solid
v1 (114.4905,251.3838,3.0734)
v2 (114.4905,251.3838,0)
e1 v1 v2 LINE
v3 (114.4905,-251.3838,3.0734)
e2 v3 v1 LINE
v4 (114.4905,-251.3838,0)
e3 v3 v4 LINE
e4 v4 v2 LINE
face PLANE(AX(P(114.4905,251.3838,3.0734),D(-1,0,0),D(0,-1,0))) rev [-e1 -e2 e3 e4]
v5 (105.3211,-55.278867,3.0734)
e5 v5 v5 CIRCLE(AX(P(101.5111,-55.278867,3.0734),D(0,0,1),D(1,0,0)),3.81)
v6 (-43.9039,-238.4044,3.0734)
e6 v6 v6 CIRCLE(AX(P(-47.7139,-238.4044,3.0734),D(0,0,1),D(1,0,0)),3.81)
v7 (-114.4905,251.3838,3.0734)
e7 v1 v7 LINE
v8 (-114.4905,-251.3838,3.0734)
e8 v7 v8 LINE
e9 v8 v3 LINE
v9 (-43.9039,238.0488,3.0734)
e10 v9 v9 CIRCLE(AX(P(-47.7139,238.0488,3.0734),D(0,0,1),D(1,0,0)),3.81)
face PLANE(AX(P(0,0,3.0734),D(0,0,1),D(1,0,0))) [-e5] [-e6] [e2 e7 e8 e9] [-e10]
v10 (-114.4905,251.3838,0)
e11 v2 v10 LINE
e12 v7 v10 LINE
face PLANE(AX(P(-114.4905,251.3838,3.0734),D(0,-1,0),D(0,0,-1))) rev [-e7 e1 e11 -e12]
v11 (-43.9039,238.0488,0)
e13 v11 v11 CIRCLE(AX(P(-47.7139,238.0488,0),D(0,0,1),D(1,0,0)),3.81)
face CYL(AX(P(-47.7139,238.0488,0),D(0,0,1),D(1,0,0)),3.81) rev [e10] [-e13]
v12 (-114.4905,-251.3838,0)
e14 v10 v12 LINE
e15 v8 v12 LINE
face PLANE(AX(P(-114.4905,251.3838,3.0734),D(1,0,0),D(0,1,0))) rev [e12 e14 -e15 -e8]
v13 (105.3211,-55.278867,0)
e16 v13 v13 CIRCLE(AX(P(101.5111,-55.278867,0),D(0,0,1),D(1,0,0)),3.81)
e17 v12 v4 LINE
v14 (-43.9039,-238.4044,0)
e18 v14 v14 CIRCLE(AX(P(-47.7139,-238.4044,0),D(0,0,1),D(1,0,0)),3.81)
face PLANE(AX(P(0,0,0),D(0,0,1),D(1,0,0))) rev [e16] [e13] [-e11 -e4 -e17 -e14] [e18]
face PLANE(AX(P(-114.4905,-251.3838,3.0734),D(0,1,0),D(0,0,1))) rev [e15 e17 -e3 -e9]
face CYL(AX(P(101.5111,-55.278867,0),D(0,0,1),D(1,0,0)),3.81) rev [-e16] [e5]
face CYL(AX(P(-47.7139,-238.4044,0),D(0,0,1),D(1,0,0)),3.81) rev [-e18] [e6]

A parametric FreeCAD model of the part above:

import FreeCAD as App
import Part
import Sketcher
from FreeCAD import Vector
Q = App.Units.Quantity


def add_polygon(sketch, points):
    """Adds a closed chain of lines whose ends are joined by coincident constraints."""
    first, n = sketch.GeometryCount, len(points)
    for a, b in zip(points, points[1:] + points[:1]):
        sketch.addGeometry(Part.LineSegment(App.Vector(*a, 0), App.Vector(*b, 0)), False)
    for i in range(n):
        sketch.addConstraint(Sketcher.Constraint("Coincident", first + i, 2, first + (i + 1) % n, 1))

doc = App.newDocument("Part")
params = doc.addObject("Spreadsheet::Sheet", "Params")
for row, (alias, value) in enumerate([
    ("sketch1_width", "9.015 in"),
    ("sketch1_height", "19.794 in"),
    ("pad1_length", "0.121 in"),
    ("sketch2_diameter", "0.3 in"),
], start=1):
    params.set(f"A{row}", alias)
    params.set(f"B{row}", "=" + value)
    params.setAlias(f"B{row}", alias)

body = doc.addObject("PartDesign::Body", "Body")

sketch1 = body.newObject("Sketcher::SketchObject", "Sketch")
sketch1.AttachmentSupport = (doc.getObject("XY_Plane"), [""])
sketch1.MapMode = "FlatFace"
add_polygon(sketch1, [(-114, 251), (-114, -251), (114, -251), (114, 251)])
sketch1.addConstraint(Sketcher.Constraint("Vertical", 0))
sketch1.addConstraint(Sketcher.Constraint("Horizontal", 1))
sketch1.addConstraint(Sketcher.Constraint("Vertical", 2))
sketch1.addConstraint(Sketcher.Constraint("Horizontal", 3))
sketch1.addConstraint(Sketcher.Constraint("Symmetric", 0, 2, 2, 2, -1, 1))
sketch1.addConstraint(Sketcher.Constraint("DistanceX", 1, 1, 1, 2, Q("9.015 in")))
sketch1.addConstraint(Sketcher.Constraint("DistanceY", 0, 2, 0, 1, Q("19.794 in")))
sketch1.setExpression("Constraints[9]", "Params.sketch1_width")
sketch1.setExpression("Constraints[10]", "Params.sketch1_height")
pad1 = body.newObject("PartDesign::Pad", "Pad")
pad1.Profile = sketch1
pad1.setExpression("Length", "Params.pad1_length")

sketch2 = body.newObject("Sketcher::SketchObject", "Sketch001")
sketch2.AttachmentSupport = (doc.getObject("XY_Plane"), [""])
sketch2.MapMode = "FlatFace"
sketch2.AttachmentOffset = App.Placement(Vector(0, 0, 0.121 * 25.4), App.Rotation())
sketch2.addGeometry(Part.Circle(Vector(-47.7, 238, 0), Vector(0, 0, 1), 3.8), False)
sketch2.addGeometry(Part.Circle(Vector(-47.7, -238.4, 0), Vector(0, 0, 1), 3.8), False)
sketch2.addGeometry(Part.Circle(Vector(101.5, -55.3, 0), Vector(0, 0, 1), 3.8), False)
sketch2.addConstraint(Sketcher.Constraint("Equal", 0, 1))
sketch2.addConstraint(Sketcher.Constraint("Equal", 1, 2))
sketch2.addConstraint(Sketcher.Constraint("Vertical", 0, 3, 1, 3))
sketch2.addConstraint(Sketcher.Constraint("Diameter", 0, Q("0.3 in")))
sketch2.addConstraint(Sketcher.Constraint("DistanceY", -1, 1, 0, 3, Q("9.372 in")))
sketch2.addConstraint(Sketcher.Constraint("DistanceY", 1, 3, -1, 1, Q("9.386 in")))
sketch2.addConstraint(Sketcher.Constraint("DistanceX", 1, 3, 2, 3, Q("5.875 in")))
sketch2.addConstraint(Sketcher.Constraint("DistanceX", 0, 3, -1, 1, Q("1.8785 in")))
sketch2.addConstraint(Sketcher.Constraint("DistanceY", 2, 3, -1, 1, 55.278867))
sketch2.setExpression("Constraints[3]", "Params.sketch2_diameter")
pocket1 = body.newObject("PartDesign::Pocket", "Pocket")
pocket1.Profile = sketch2
pocket1.Type = "ThroughAll"

doc.recompute()
